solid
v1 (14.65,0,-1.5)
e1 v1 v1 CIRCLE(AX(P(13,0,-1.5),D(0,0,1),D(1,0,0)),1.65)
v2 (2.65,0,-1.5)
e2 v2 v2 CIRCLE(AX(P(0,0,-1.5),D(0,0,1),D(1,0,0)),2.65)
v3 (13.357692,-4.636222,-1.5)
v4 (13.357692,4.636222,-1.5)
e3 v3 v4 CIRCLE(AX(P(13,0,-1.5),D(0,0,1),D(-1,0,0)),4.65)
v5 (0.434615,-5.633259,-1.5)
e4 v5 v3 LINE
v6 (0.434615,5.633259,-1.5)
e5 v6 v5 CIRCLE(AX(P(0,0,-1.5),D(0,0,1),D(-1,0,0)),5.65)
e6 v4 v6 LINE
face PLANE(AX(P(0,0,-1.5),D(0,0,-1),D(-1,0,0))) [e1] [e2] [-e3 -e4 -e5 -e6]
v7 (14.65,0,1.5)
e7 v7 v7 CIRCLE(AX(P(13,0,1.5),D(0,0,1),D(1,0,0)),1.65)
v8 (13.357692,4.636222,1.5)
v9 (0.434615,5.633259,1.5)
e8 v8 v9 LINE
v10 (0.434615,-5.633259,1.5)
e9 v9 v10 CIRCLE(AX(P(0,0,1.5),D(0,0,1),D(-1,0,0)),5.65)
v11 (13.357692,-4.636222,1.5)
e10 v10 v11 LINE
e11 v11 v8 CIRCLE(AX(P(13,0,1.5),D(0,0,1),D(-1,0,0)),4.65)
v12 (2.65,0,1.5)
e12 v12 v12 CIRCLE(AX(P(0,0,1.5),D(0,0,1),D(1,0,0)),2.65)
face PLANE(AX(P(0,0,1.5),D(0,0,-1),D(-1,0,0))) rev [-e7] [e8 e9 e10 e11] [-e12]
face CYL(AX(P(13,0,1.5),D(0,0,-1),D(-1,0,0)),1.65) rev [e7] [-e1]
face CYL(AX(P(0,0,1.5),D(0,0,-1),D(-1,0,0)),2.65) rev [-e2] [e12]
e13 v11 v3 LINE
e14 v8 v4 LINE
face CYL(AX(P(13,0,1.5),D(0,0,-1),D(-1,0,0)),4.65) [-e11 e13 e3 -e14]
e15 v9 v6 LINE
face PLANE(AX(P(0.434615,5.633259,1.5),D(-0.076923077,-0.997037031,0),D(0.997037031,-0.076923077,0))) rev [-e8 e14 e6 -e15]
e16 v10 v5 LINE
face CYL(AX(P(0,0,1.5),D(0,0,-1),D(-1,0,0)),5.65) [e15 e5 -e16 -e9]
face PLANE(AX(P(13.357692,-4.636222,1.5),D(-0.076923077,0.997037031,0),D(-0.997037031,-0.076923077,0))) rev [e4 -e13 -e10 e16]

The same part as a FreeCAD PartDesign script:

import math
import FreeCAD as App
import Part
import Sketcher

V = App.Vector
Q = App.Units.Quantity

doc = App.newDocument("Part")
body = doc.addObject("PartDesign::Body", "Body")

# Sketch on XY plane
sketch1 = body.newObject("Sketcher::SketchObject", "Sketch")
sketch1.AttachmentSupport = (doc.getObject("XY_Plane"), [""])
sketch1.MapMode = "FlatFace"
sketch1.addGeometry(Part.LineSegment(V(13.357692, 4.636222, 0), V(0.434615, 5.633259, 0)), False)
sketch1.addGeometry(Part.ArcOfCircle(Part.Circle(V(0, 0, 0), V(0, 0, 1), 5.65), math.radians(85.588274), math.radians(274.411726)), False)
sketch1.addGeometry(Part.LineSegment(V(0.434615, -5.633259, 0), V(13.357692, -4.636222, 0)), False)
sketch1.addGeometry(Part.ArcOfCircle(Part.Circle(V(13, 0, 0), V(0, 0, 1), 4.65), math.radians(-85.588274), math.radians(85.588274)), False)
sketch1.addGeometry(Part.Circle(V(13, 0, 0), V(0, 0, 1), 1.65), False)
sketch1.addGeometry(Part.Circle(V(0, 0, 0), V(0, 0, 1), 2.65), False)
sketch1.addConstraint(Sketcher.Constraint("Tangent", 0, 2, 1, 1))
sketch1.addConstraint(Sketcher.Constraint("Tangent", 1, 2, 2, 1))
sketch1.addConstraint(Sketcher.Constraint("Tangent", 2, 2, 3, 1))
sketch1.addConstraint(Sketcher.Constraint("Tangent", 3, 2, 0, 1))
sketch1.addConstraint(Sketcher.Constraint("Coincident", 1, 3, -1, 1))
sketch1.addConstraint(Sketcher.Constraint("Coincident", 5, 3, -1, 1))
sketch1.addConstraint(Sketcher.Constraint("Coincident", 4, 3, 3, 3))
sketch1.addConstraint(Sketcher.Constraint("PointOnObject", 3, 3, -1))
sketch1.addConstraint(Sketcher.Constraint("Diameter", 4, Q("3.3 mm")))
sketch1.addConstraint(Sketcher.Constraint("Diameter", 5, Q("5.3 mm")))
sketch1.addConstraint(Sketcher.Constraint("Radius", 1, Q("5.65 mm")))
sketch1.addConstraint(Sketcher.Constraint("Radius", 3, Q("4.65 mm")))
sketch1.addConstraint(Sketcher.Constraint("DistanceX", -1, 1, 3, 3, Q("13 mm")))
pad1 = body.newObject("PartDesign::Pad", "Pad")
pad1.Profile = sketch1
pad1.Length = 3
pad1.Midplane = True

doc.recompute()
